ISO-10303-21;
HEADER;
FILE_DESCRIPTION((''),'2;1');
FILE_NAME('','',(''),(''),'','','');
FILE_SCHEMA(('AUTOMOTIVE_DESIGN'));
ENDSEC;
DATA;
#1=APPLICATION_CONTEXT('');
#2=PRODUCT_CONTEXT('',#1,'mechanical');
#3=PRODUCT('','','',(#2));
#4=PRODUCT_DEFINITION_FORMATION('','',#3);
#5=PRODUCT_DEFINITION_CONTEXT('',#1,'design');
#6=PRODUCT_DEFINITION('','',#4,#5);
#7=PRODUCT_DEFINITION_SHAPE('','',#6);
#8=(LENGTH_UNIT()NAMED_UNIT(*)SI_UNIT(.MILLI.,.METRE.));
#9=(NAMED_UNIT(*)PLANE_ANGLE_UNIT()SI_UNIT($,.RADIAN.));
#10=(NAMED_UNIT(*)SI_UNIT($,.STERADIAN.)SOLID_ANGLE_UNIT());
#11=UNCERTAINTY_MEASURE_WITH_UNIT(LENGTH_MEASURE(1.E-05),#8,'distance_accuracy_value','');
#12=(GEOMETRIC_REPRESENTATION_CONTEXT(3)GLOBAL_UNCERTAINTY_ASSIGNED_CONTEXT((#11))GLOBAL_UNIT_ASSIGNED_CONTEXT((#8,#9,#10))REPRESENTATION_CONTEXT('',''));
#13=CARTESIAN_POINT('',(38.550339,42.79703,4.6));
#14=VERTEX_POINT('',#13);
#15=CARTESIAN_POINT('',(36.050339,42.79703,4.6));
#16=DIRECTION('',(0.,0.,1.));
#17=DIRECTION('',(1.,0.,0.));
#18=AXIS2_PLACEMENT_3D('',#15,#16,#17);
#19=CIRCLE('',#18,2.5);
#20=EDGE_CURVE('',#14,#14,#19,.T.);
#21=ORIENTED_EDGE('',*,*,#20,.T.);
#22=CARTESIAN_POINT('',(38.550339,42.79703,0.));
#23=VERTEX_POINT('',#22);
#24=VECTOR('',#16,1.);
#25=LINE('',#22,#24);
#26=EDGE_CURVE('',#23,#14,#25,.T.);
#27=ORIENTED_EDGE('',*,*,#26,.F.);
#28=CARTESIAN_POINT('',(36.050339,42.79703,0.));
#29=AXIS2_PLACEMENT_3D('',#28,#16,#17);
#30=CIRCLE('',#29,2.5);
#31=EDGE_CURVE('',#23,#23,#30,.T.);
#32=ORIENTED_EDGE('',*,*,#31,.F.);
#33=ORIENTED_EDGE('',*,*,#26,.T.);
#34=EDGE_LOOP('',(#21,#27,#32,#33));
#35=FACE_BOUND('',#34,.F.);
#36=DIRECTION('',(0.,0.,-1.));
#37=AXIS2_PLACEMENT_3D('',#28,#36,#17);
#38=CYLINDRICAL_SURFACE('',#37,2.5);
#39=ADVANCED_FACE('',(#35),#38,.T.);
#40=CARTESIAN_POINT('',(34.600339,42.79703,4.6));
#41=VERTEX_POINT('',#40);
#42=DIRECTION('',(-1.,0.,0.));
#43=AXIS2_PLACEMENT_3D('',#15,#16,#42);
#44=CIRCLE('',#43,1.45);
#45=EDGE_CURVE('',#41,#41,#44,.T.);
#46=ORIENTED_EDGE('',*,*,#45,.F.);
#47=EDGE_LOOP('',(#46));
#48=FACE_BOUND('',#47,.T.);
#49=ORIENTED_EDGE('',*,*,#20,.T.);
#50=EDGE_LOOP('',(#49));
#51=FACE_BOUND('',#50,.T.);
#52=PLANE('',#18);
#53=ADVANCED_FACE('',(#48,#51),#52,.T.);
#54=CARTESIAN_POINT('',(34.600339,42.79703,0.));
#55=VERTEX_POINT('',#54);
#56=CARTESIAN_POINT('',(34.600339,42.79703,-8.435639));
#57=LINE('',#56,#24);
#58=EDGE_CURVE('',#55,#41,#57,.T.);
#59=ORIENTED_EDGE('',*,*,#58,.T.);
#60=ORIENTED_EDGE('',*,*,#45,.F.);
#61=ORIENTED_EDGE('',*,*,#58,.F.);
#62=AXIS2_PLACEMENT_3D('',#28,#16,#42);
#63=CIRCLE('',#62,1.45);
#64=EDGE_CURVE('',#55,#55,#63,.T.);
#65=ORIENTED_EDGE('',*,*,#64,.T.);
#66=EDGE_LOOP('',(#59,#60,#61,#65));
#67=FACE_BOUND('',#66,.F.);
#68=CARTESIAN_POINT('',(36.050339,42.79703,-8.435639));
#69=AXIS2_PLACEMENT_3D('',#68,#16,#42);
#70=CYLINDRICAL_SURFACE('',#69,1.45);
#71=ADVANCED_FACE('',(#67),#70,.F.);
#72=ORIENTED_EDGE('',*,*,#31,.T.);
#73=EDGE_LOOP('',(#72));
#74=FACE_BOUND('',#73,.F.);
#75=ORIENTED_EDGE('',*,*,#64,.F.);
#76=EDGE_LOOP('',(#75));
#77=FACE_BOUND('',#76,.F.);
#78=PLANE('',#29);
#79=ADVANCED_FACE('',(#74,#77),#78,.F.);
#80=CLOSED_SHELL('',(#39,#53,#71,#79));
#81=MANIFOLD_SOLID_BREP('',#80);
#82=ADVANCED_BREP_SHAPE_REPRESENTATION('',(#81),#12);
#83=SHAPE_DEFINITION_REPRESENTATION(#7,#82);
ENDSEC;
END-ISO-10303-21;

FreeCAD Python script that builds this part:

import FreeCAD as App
import Part
import Sketcher
Q = App.Units.Quantity

doc = App.newDocument("Part")
body = doc.addObject("PartDesign::Body", "Body")

sketch1 = body.newObject("Sketcher::SketchObject", "Sketch")
sketch1.AttachmentSupport = (doc.getObject("XY_Plane"), [""])
sketch1.MapMode = "FlatFace"
sketch1.addGeometry(Part.Circle(App.Vector(36.1, 42.8, 0), App.Vector(0, 0, 1), 2.5), False)
sketch1.addConstraint([
    Sketcher.Constraint("Diameter", 0, Q("5 mm")),
    Sketcher.Constraint("DistanceX", -1, 1, 0, 3, Q("36.050339 mm")),
    Sketcher.Constraint("DistanceY", -1, 1, 0, 3, Q("42.79703 mm")),
])
pad1 = body.newObject("PartDesign::Pad", "Pad")
pad1.Profile = sketch1
pad1.Length = 4.6

sketch2 = body.newObject("Sketcher::SketchObject", "Sketch001")
sketch2.AttachmentSupport = (doc.getObject("XY_Plane"), [""])
sketch2.MapMode = "FlatFace"
sketch2.addGeometry(Part.Circle(App.Vector(36.1, 42.8, 0), App.Vector(0, 0, 1), 1.4), False)
sketch2.addConstraint([
    Sketcher.Constraint("Diameter", 0, Q("2.9 mm")),
    Sketcher.Constraint("DistanceX", -1, 1, 0, 3, Q("36.050339 mm")),
    Sketcher.Constraint("DistanceY", -1, 1, 0, 3, Q("42.79703 mm")),
])
doc.recompute()
hole = body.newObject("PartDesign::Hole", "Hole")
hole.Profile = sketch2
hole.ThreadType = "None"
hole.Diameter = 2.9
hole.DepthType = "ThroughAll"
hole.Reversed = True

doc.recompute()
